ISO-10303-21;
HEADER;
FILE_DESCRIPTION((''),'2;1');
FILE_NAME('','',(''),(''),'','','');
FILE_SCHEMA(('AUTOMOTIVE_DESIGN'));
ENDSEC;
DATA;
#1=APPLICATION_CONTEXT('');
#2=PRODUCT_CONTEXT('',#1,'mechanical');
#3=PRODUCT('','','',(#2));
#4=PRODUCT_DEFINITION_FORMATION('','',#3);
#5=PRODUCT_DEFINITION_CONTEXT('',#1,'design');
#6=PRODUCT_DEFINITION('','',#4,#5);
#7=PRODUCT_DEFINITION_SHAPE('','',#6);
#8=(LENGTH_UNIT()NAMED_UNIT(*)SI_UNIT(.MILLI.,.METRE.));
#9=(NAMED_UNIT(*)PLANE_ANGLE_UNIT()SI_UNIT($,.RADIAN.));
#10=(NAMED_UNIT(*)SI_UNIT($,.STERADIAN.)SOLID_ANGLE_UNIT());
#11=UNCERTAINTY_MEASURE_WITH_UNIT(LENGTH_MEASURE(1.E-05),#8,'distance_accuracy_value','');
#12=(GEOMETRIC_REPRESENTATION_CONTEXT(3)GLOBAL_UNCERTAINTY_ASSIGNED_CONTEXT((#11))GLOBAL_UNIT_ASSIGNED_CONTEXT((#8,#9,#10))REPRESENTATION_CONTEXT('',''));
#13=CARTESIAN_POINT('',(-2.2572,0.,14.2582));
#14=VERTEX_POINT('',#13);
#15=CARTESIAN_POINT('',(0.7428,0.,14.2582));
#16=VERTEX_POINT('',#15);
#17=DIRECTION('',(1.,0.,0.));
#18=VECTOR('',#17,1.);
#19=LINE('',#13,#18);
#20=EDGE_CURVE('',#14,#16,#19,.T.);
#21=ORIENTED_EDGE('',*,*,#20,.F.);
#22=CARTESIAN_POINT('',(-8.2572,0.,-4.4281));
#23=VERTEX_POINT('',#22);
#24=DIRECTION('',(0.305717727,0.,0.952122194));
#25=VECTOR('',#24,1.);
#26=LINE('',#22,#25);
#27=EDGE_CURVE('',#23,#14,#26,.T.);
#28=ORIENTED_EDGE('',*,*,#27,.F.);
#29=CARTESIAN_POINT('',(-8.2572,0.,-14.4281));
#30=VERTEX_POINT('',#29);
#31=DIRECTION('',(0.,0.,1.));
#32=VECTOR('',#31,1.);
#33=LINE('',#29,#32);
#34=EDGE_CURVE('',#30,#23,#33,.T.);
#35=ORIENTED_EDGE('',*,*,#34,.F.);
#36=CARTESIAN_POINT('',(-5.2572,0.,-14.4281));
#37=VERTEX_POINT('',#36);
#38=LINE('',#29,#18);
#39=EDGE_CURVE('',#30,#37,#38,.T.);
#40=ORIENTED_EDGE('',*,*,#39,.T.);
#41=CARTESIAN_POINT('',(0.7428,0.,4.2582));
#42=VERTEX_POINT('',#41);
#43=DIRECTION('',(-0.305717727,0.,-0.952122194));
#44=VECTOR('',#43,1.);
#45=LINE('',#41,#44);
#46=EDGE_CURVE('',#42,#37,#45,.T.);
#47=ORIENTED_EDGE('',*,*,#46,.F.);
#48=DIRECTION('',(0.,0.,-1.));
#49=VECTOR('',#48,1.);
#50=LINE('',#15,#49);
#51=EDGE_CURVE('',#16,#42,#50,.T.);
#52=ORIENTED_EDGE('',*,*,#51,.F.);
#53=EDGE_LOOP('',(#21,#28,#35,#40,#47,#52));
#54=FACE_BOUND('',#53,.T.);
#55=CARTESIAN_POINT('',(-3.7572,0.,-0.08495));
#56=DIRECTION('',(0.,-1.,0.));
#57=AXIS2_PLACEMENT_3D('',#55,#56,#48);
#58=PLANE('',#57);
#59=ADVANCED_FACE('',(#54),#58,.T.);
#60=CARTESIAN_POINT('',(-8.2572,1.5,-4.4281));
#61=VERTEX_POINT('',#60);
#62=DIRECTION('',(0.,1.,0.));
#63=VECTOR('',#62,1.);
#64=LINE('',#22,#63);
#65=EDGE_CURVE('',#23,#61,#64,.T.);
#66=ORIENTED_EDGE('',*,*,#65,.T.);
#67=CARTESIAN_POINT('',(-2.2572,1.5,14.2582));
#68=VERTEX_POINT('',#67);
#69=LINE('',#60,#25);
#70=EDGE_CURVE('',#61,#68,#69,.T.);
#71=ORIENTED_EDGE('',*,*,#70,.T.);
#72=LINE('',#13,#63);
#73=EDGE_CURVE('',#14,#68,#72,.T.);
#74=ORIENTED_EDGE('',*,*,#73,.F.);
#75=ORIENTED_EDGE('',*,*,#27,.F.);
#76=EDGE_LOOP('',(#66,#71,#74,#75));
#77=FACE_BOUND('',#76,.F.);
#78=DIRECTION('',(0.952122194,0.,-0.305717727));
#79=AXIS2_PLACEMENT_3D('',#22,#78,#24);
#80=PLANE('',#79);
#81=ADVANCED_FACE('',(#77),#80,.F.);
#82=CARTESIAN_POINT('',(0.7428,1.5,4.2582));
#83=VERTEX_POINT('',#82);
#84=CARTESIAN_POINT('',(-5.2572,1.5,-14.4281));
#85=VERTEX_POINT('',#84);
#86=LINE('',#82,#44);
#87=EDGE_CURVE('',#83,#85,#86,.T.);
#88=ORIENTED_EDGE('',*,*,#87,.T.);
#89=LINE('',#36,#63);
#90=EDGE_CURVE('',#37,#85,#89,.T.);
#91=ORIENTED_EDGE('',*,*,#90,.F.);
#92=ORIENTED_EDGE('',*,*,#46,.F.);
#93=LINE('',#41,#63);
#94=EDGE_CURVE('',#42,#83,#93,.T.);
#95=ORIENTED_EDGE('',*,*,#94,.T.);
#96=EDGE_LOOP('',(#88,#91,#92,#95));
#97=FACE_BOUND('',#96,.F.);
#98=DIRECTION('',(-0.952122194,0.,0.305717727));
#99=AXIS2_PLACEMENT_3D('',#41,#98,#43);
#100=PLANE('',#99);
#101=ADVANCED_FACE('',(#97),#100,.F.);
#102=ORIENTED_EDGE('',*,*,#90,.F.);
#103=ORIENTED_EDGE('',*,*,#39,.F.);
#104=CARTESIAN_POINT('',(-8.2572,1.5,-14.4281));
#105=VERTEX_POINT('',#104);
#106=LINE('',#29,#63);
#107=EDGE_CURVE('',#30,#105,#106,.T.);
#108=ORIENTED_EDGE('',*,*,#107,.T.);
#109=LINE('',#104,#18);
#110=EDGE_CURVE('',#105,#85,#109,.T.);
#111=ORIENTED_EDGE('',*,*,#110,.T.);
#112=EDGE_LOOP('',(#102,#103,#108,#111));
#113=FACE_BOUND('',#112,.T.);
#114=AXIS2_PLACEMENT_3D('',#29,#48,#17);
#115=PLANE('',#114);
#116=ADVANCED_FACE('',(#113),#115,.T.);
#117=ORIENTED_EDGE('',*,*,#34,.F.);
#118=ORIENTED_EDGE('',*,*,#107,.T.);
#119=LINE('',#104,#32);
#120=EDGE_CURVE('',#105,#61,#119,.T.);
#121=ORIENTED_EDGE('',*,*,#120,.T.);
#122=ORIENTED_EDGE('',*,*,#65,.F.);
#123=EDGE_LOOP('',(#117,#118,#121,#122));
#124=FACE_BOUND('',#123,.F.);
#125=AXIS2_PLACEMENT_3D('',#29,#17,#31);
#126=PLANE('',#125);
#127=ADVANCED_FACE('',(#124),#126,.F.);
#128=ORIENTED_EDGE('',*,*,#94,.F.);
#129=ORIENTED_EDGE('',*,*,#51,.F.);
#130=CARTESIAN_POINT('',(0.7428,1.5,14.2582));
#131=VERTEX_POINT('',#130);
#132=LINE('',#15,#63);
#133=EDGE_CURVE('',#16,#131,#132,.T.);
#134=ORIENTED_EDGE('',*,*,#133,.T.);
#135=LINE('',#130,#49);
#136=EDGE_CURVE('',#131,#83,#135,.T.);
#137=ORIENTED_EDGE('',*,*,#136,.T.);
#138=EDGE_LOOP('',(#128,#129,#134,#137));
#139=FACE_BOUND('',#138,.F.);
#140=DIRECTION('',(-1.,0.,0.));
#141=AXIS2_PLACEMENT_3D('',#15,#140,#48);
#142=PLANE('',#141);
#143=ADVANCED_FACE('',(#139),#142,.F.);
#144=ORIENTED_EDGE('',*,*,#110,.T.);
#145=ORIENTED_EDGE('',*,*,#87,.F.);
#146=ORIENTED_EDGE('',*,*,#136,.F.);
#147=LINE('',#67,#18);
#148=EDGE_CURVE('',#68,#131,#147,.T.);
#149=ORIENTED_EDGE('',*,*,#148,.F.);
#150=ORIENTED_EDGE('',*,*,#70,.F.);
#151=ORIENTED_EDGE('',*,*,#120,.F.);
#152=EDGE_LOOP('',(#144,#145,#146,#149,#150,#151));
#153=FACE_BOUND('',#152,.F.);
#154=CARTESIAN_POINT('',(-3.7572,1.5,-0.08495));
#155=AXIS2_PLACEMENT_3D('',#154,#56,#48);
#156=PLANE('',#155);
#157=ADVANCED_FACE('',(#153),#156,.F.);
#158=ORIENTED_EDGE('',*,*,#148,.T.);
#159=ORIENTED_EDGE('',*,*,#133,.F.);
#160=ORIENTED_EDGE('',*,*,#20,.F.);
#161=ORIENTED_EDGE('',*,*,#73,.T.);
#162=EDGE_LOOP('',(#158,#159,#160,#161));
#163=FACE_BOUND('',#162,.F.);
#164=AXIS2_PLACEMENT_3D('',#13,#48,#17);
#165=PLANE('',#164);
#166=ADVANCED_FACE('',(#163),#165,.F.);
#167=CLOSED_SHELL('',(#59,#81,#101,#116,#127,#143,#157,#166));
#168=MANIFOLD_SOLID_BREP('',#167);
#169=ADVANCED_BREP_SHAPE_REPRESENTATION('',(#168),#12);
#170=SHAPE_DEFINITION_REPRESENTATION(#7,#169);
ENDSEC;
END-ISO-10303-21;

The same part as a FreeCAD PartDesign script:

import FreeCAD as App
import Part
import Sketcher

V = App.Vector

doc = App.newDocument("Part")
params = doc.addObject("Spreadsheet::Sheet", "Params")
for row, (alias, value) in enumerate([
    ("sketch1_width", "3 mm"),
    ("sketch1_height", "10 mm"),
    ("pad1_length", "1.5 mm"),
], start=1):
    params.set(f"A{row}", alias)
    params.set(f"B{row}", "=" + value)
    params.setAlias(f"B{row}", alias)

body = doc.addObject("PartDesign::Body", "Body")

sketch1 = doc.addObject("Sketcher::SketchObject", "Sketch")
body.addObject(sketch1)
sketch1.AttachmentSupport = (doc.XZ_Plane, [""])
sketch1.MapMode = "FlatFace"
sketch1.addGeometry([
    Part.LineSegment(V(-8.3, -4.4, 0), V(-8.3, -14.4, 0)),
    Part.LineSegment(V(-8.3, -14.4, 0), V(-5.3, -14.4, 0)),
    Part.LineSegment(V(-5.3, -14.4, 0), V(0.7, 4.3, 0)),
    Part.LineSegment(V(0.7, 4.3, 0), V(0.7, 14.3, 0)),
    Part.LineSegment(V(0.7, 14.3, 0), V(-2.3, 14.3, 0)),
    Part.LineSegment(V(-2.3, 14.3, 0), V(-8.3, -4.4, 0)),
], False)
sketch1.addConstraint([
    Sketcher.Constraint("Coincident", 0, 2, 1, 1),
    Sketcher.Constraint("Coincident", 1, 2, 2, 1),
    Sketcher.Constraint("Coincident", 2, 2, 3, 1),
    Sketcher.Constraint("Coincident", 3, 2, 4, 1),
    Sketcher.Constraint("Coincident", 4, 2, 5, 1),
    Sketcher.Constraint("Coincident", 5, 2, 0, 1),
    Sketcher.Constraint("Vertical", 0),
    Sketcher.Constraint("Horizontal", 1),
    Sketcher.Constraint("Vertical", 3),
    Sketcher.Constraint("Horizontal", 4),
    Sketcher.Constraint("Parallel", 2, 5),
    Sketcher.Constraint("Equal", 1, 4),
    Sketcher.Constraint("DistanceX", 1, 1, 1, 2, 3.0),
    Sketcher.Constraint("DistanceY", 0, 2, 0, 1, 10.0),
    Sketcher.Constraint("DistanceX", 1, 2, 2, 2, 6.0),
    Sketcher.Constraint("DistanceX", -1, 1, 2, 2, 0.7428),
    Sketcher.Constraint("Distance", 2, 19.626),
    Sketcher.Constraint("DistanceY", 0, 2, -1, 1, 14.428),
])
sketch1.setExpression("Constraints[12]", "Params.sketch1_width")
sketch1.setExpression("Constraints[13]", "Params.sketch1_height")
pad1 = doc.addObject("PartDesign::Pad", "Pad")
body.addObject(pad1)
pad1.Profile = sketch1
pad1.setExpression("Length", "Params.pad1_length")
pad1.Reversed = True

doc.recompute()
